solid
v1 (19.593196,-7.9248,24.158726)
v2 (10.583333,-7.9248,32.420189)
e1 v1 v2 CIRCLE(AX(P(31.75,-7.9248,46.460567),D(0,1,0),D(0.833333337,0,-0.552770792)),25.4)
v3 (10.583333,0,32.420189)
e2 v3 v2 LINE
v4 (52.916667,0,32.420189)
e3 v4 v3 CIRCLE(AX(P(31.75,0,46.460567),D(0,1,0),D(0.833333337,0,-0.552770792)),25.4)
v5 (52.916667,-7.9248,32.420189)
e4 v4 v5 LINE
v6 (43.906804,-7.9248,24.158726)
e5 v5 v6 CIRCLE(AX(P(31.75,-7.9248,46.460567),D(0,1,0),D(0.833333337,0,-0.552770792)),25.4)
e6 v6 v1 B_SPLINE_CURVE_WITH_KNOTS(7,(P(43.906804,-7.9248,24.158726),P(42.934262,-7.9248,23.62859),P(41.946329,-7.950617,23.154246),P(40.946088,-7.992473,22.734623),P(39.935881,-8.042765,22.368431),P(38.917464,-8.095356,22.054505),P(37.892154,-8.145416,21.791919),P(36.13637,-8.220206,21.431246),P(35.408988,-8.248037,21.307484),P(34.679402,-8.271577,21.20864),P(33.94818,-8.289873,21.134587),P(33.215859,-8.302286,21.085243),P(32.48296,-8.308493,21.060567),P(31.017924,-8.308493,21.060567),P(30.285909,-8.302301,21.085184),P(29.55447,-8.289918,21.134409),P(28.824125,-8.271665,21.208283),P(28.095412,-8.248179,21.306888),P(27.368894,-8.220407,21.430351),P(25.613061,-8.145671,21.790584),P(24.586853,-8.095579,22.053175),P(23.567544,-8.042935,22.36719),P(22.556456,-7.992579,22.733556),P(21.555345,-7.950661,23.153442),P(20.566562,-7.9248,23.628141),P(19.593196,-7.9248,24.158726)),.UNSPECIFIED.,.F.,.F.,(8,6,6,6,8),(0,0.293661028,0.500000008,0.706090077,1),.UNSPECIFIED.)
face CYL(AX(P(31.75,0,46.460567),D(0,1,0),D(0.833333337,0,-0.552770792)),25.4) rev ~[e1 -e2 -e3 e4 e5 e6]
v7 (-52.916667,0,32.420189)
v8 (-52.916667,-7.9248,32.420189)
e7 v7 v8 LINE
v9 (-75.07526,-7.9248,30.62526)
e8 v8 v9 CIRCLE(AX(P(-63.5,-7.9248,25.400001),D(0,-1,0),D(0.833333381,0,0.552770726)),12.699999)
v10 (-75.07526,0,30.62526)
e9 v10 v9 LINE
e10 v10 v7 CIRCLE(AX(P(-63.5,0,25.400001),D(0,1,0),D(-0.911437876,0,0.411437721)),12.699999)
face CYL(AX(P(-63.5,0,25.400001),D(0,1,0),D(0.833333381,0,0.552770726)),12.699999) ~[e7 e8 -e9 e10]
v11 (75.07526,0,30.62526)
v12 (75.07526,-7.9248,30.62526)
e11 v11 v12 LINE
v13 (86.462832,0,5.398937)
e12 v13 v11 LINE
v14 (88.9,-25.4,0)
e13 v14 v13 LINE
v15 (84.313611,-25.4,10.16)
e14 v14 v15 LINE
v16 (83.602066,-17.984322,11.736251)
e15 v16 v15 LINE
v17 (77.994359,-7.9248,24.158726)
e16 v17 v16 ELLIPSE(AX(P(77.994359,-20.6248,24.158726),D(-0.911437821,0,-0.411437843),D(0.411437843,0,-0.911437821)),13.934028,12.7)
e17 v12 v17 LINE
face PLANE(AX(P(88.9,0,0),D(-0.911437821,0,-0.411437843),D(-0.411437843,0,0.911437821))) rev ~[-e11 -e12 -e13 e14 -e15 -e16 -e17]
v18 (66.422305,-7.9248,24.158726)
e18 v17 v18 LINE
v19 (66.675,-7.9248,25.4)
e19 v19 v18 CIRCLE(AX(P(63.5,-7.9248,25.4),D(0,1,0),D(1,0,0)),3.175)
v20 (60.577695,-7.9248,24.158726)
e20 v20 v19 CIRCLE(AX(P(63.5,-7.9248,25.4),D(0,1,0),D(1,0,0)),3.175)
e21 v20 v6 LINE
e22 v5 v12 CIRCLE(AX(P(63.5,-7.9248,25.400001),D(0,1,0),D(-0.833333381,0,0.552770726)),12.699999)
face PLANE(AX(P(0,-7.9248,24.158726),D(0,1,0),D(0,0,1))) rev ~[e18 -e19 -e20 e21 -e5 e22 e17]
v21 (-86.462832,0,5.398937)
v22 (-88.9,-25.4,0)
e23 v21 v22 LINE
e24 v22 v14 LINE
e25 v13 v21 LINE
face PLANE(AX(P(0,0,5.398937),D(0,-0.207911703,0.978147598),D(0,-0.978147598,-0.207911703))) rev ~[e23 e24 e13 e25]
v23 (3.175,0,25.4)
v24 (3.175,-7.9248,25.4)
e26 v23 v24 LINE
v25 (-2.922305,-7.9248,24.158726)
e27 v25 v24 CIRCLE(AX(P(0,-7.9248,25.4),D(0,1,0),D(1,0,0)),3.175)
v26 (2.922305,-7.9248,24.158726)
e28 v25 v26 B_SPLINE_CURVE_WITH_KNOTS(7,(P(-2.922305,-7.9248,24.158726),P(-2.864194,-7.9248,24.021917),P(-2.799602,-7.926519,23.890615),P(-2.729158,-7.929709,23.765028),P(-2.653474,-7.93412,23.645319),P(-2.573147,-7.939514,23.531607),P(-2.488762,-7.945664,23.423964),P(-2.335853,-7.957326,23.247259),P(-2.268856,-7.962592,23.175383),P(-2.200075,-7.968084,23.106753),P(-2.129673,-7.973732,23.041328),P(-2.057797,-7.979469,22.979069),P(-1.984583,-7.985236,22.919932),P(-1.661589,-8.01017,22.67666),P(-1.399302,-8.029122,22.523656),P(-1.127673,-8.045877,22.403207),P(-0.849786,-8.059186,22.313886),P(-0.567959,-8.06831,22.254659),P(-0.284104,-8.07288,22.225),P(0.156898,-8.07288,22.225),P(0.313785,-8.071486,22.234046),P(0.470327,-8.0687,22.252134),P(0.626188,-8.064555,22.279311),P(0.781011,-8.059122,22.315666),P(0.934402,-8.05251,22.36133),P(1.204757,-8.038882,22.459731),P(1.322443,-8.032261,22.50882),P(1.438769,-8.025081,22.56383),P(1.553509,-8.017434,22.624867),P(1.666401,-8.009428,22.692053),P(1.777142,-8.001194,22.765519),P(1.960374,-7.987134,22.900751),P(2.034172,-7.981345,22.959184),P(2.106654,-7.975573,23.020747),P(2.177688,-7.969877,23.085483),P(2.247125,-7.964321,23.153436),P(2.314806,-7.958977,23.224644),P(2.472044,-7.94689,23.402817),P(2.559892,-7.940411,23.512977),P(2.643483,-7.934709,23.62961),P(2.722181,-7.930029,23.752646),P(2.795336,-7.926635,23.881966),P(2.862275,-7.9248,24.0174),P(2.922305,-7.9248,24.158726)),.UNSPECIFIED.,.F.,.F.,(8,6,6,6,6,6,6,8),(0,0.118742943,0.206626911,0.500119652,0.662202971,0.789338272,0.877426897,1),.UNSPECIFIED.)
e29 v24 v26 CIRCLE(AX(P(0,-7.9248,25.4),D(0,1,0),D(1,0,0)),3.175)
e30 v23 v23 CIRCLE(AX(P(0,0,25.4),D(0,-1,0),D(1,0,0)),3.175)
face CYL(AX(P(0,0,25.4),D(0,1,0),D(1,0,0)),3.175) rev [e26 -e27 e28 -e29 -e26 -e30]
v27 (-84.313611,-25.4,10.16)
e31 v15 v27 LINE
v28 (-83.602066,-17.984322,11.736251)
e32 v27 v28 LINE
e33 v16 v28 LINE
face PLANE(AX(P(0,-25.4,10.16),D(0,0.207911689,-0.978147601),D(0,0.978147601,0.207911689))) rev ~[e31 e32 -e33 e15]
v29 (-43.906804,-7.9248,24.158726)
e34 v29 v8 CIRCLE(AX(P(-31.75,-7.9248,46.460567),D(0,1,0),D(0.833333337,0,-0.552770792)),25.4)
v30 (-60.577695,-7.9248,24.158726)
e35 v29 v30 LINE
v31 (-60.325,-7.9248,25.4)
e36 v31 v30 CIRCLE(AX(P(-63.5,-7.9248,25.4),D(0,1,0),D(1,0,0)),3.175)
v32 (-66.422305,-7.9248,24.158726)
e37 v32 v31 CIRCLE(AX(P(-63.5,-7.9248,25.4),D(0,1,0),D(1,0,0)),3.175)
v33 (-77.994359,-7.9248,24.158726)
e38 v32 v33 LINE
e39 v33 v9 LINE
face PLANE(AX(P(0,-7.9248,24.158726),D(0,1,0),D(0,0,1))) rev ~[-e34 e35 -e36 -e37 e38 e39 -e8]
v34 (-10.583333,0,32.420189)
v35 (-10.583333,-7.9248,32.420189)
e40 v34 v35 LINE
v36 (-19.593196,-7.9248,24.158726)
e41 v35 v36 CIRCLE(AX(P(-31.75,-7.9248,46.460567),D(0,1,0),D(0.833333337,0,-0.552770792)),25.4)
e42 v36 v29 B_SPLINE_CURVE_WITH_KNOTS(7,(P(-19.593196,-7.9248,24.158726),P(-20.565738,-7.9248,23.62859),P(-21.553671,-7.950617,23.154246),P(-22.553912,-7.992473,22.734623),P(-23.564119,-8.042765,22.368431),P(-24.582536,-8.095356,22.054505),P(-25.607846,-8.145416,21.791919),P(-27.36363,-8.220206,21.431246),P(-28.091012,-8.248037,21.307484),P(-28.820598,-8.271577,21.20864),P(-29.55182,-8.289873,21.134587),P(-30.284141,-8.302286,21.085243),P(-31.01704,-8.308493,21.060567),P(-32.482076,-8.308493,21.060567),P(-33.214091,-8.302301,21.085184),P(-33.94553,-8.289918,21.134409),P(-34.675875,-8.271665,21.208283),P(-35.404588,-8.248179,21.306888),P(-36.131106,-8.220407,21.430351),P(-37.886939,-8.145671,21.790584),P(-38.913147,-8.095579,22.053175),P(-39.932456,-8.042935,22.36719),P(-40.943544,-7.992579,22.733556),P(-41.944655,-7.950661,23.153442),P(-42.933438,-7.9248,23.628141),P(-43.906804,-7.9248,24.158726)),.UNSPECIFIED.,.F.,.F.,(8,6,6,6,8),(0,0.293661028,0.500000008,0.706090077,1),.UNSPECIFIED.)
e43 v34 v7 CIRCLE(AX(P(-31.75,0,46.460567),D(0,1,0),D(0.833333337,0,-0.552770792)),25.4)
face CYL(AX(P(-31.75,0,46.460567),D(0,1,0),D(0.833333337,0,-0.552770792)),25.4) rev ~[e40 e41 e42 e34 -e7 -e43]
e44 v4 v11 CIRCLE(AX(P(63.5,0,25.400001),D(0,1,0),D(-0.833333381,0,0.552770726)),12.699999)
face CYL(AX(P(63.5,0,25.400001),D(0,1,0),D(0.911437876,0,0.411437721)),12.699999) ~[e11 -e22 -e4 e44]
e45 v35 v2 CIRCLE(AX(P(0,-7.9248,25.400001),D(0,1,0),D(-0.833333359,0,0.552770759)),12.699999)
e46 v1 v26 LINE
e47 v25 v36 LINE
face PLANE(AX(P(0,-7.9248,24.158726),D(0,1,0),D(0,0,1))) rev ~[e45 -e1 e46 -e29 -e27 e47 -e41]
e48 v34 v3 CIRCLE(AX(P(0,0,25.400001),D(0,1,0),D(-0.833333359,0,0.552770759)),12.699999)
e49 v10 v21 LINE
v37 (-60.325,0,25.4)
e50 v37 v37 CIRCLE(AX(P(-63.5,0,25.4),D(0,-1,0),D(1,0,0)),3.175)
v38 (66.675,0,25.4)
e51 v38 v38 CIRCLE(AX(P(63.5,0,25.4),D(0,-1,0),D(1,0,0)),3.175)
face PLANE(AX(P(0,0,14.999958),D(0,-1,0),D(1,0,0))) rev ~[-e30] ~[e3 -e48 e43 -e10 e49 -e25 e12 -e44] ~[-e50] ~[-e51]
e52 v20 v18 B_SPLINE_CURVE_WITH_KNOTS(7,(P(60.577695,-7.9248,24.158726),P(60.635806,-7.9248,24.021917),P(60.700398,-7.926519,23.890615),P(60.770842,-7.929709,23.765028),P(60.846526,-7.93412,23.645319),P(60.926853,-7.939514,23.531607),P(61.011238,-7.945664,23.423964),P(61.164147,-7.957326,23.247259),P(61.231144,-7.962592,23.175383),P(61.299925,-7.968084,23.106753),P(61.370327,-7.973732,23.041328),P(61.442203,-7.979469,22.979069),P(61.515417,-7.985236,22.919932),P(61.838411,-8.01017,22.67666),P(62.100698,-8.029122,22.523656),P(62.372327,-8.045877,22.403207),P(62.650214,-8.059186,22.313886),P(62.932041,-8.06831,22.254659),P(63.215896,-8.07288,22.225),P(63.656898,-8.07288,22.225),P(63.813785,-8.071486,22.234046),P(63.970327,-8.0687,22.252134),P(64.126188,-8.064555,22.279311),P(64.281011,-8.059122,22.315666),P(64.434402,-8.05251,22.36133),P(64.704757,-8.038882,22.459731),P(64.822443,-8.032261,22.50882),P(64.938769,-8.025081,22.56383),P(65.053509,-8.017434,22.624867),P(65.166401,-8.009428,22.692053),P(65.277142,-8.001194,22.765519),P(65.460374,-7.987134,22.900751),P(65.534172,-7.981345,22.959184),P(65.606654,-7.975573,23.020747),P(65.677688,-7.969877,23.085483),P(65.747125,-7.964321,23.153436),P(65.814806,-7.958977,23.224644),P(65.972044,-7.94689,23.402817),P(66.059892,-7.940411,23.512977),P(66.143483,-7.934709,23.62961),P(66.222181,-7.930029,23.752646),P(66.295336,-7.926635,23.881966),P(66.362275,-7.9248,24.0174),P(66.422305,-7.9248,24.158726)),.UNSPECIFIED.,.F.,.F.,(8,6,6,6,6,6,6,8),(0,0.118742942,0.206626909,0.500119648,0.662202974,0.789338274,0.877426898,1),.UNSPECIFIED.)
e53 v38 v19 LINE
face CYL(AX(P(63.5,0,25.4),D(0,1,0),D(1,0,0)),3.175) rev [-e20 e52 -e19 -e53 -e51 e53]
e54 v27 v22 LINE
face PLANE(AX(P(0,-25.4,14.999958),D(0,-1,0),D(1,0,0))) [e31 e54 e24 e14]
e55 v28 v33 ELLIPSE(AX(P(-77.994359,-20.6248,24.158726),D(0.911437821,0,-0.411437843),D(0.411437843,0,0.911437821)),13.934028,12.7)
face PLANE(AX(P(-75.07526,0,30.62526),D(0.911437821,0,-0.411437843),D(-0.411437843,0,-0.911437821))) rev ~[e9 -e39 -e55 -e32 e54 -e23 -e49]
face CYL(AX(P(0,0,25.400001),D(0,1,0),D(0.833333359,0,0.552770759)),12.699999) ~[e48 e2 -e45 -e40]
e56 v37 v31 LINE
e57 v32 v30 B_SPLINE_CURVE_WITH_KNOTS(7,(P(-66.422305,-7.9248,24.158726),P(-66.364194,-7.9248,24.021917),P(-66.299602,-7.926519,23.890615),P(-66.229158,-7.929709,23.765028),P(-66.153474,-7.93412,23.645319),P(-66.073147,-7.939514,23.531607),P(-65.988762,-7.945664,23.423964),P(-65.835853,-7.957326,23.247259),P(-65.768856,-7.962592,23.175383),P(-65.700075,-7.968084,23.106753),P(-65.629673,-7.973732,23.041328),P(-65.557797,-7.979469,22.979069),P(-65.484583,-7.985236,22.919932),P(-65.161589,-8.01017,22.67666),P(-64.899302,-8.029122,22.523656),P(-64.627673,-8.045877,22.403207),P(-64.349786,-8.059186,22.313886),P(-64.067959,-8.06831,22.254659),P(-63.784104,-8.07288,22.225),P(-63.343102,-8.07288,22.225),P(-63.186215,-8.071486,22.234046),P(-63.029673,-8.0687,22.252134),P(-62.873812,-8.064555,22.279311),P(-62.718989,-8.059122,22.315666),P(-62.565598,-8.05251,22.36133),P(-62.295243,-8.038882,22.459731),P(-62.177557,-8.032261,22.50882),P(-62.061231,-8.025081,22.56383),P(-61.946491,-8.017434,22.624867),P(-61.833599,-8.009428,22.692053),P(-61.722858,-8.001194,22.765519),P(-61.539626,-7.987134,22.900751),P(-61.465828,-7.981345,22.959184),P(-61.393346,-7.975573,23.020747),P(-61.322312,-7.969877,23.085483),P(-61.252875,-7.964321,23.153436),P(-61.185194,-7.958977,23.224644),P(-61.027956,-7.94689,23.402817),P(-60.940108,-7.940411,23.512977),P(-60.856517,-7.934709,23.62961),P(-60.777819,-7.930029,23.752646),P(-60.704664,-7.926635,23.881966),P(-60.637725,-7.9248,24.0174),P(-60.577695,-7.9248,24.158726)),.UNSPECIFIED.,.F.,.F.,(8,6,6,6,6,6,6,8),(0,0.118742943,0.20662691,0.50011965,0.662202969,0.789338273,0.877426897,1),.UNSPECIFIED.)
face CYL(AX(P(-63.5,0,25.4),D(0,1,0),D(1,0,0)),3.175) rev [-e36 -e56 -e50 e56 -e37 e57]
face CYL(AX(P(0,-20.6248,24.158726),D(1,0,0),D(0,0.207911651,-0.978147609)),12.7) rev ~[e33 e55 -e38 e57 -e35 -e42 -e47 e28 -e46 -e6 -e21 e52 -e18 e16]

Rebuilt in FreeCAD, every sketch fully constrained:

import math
import FreeCAD as App
import Part
import Sketcher

V = App.Vector
Q = App.Units.Quantity

doc = App.newDocument("Part")
body = doc.addObject("PartDesign::Body", "Body")

# Sketch on XZ plane
sketch1 = body.newObject("Sketcher::SketchObject", "Sketch")
sketch1.AttachmentSupport = (doc.getObject("XZ_Plane"), [""])
sketch1.MapMode = "FlatFace"
sketch1.addGeometry(Part.LineSegment(V(-75.1, 30.6, 0), V(-88.9, 0, 0)), False)
sketch1.addGeometry(Part.LineSegment(V(-88.9, 0, 0), V(88.9, 0, 0)), False)
sketch1.addGeometry(Part.LineSegment(V(88.9, 0, 0), V(75.1, 30.6, 0)), False)
sketch1.addGeometry(Part.ArcOfCircle(Part.Circle(V(63.5, 25.4, 0), V(0, 0, 1), 12.7), math.radians(24), math.radians(146)), False)
sketch1.addGeometry(Part.ArcOfCircle(Part.Circle(V(31.8, 46.5, 0), V(0, 0, 1), 25.4), math.radians(-146), math.radians(-34)), False)
sketch1.addGeometry(Part.ArcOfCircle(Part.Circle(V(0, 25.4, 0), V(0, 0, 1), 12.7), math.radians(34), math.radians(146)), False)
sketch1.addGeometry(Part.ArcOfCircle(Part.Circle(V(-31.8, 46.5, 0), V(0, 0, 1), 25.4), math.radians(-146), math.radians(-34)), False)
sketch1.addGeometry(Part.ArcOfCircle(Part.Circle(V(-63.5, 25.4, 0), V(0, 0, 1), 12.7), math.radians(34), math.radians(156)), False)
sketch1.addGeometry(Part.Circle(V(-63.5, 25.4, 0), V(0, 0, 1), 3.2), False)
sketch1.addGeometry(Part.Circle(V(0, 25.4, 0), V(0, 0, 1), 3.2), False)
sketch1.addGeometry(Part.Circle(V(63.5, 25.4, 0), V(0, 0, 1), 3.2), False)
sketch1.addConstraint(Sketcher.Constraint("Coincident", 0, 2, 1, 1))
sketch1.addConstraint(Sketcher.Constraint("Coincident", 1, 2, 2, 1))
sketch1.addConstraint(Sketcher.Constraint("Tangent", 2, 2, 3, 1))
sketch1.addConstraint(Sketcher.Constraint("Tangent", 3, 2, 4, 2))
sketch1.addConstraint(Sketcher.Constraint("Tangent", 4, 1, 5, 1))
sketch1.addConstraint(Sketcher.Constraint("Tangent", 5, 2, 6, 2))
sketch1.addConstraint(Sketcher.Constraint("Tangent", 6, 1, 7, 1))
sketch1.addConstraint(Sketcher.Constraint("Tangent", 7, 2, 0, 1))
sketch1.addConstraint(Sketcher.Constraint("Horizontal", 1))
sketch1.addConstraint(Sketcher.Constraint("Coincident", 8, 3, 7, 3))
sketch1.addConstraint(Sketcher.Constraint("Coincident", 9, 3, 5, 3))
sketch1.addConstraint(Sketcher.Constraint("Coincident", 10, 3, 3, 3))
sketch1.addConstraint(Sketcher.Constraint("Equal", 3, 5))
sketch1.addConstraint(Sketcher.Constraint("Equal", 4, 6))
sketch1.addConstraint(Sketcher.Constraint("Equal", 5, 7))
sketch1.addConstraint(Sketcher.Constraint("Equal", 8, 9))
sketch1.addConstraint(Sketcher.Constraint("Equal", 9, 10))
sketch1.addConstraint(Sketcher.Constraint("Symmetric", 0, 2, 1, 2, -1, 1))
sketch1.addConstraint(Sketcher.Constraint("Symmetric", 4, 3, 6, 3, -2))
sketch1.addConstraint(Sketcher.Constraint("Horizontal", 3, 3, 5, 3))
sketch1.addConstraint(Sketcher.Constraint("Horizontal", 5, 3, 7, 3))
sketch1.addConstraint(Sketcher.Constraint("Radius", 4, Q("1 in")))
sketch1.addConstraint(Sketcher.Constraint("Radius", 3, Q("0.5 in")))
sketch1.addConstraint(Sketcher.Constraint("Diameter", 8, Q("0.25 in")))
sketch1.addConstraint(Sketcher.Constraint("DistanceX", 1, 1, 1, 2, Q("7 in")))
sketch1.addConstraint(Sketcher.Constraint("DistanceY", -1, 1, 3, 3, Q("1.0000001 in")))
sketch1.addConstraint(Sketcher.Constraint("DistanceX", 7, 3, 3, 3, Q("5 in")))
pad1 = body.newObject("PartDesign::Pad", "Pad")
pad1.Profile = sketch1
pad1.Length = Q("1 in")

# Sketch on YZ plane
sketch2 = body.newObject("Sketcher::SketchObject", "Sketch001")
sketch2.AttachmentSupport = (doc.getObject("YZ_Plane"), [""])
sketch2.MapMode = "FlatFace"
sketch2.addGeometry(Part.LineSegment(V(-32, 43, 0), V(-32, -3, 0)), False)
sketch2.addGeometry(Part.LineSegment(V(-32, -3, 0), V(7, -3, 0)), False)
sketch2.addGeometry(Part.LineSegment(V(7, -3, 0), V(7, 43, 0)), False)
sketch2.addGeometry(Part.LineSegment(V(7, 43, 0), V(-32, 43, 0)), False)
sketch2.addGeometry(Part.LineSegment(V(-8, 24, 0), V(-8, 38, 0)), False)
sketch2.addGeometry(Part.LineSegment(V(-8, 38, 0), V(0, 38, 0)), False)
sketch2.addGeometry(Part.LineSegment(V(0, 38, 0), V(0, 5, 0)), False)
sketch2.addGeometry(Part.LineSegment(V(0, 5, 0), V(-25, 0, 0)), False)
sketch2.addGeometry(Part.LineSegment(V(-25, 0, 0), V(-25, 10, 0)), False)
sketch2.addGeometry(Part.LineSegment(V(-25, 10, 0), V(-18, 12, 0)), False)
sketch2.addGeometry(Part.ArcOfCircle(Part.Circle(V(-21, 24, 0), V(0, 0, 1), 13), math.radians(-78), math.radians(0)), False)
sketch2.addConstraint(Sketcher.Constraint("Coincident", 0, 2, 1, 1))
sketch2.addConstraint(Sketcher.Constraint("Coincident", 1, 2, 2, 1))
sketch2.addConstraint(Sketcher.Constraint("Coincident", 2, 2, 3, 1))
sketch2.addConstraint(Sketcher.Constraint("Coincident", 3, 2, 0, 1))
sketch2.addConstraint(Sketcher.Constraint("Coincident", 4, 2, 5, 1))
sketch2.addConstraint(Sketcher.Constraint("Coincident", 5, 2, 6, 1))
sketch2.addConstraint(Sketcher.Constraint("Coincident", 6, 2, 7, 1))
sketch2.addConstraint(Sketcher.Constraint("Coincident", 7, 2, 8, 1))
sketch2.addConstraint(Sketcher.Constraint("Coincident", 8, 2, 9, 1))
sketch2.addConstraint(Sketcher.Constraint("Tangent", 9, 2, 10, 1))
sketch2.addConstraint(Sketcher.Constraint("Tangent", 10, 2, 4, 1))
sketch2.addConstraint(Sketcher.Constraint("Vertical", 0))
sketch2.addConstraint(Sketcher.Constraint("Horizontal", 1))
sketch2.addConstraint(Sketcher.Constraint("Vertical", 2))
sketch2.addConstraint(Sketcher.Constraint("Horizontal", 3))
sketch2.addConstraint(Sketcher.Constraint("Vertical", 4))
sketch2.addConstraint(Sketcher.Constraint("Horizontal", 5))
sketch2.addConstraint(Sketcher.Constraint("Vertical", 6))
sketch2.addConstraint(Sketcher.Constraint("Vertical", 8))
sketch2.addConstraint(Sketcher.Constraint("PointOnObject", 5, 2, -2))
sketch2.addConstraint(Sketcher.Constraint("PointOnObject", 7, 2, -1))
sketch2.addConstraint(Sketcher.Constraint("Parallel", 7, 9))
sketch2.addConstraint(Sketcher.Constraint("Radius", 10, Q("0.5 in")))
sketch2.addConstraint(Sketcher.Constraint("DistanceY", 8, 1, 8, 2, Q("0.4 in")))
sketch2.addConstraint(Sketcher.Constraint("DistanceX", 7, 2, -1, 1, Q("1 in")))
sketch2.addConstraint(Sketcher.Constraint("Angle", 7, Q("-167.999999 deg")))
sketch2.addConstraint(Sketcher.Constraint("DistanceY", -1, 1, 4, 2, Q("1.5 in")))
sketch2.addConstraint(Sketcher.Constraint("DistanceX", 5, 1, 5, 2, Q("0.312 in")))
sketch2.addConstraint(Sketcher.Constraint("DistanceY", 0, 2, 0, 1, 45.7977))
sketch2.addConstraint(Sketcher.Constraint("DistanceX", 1, 1, 1, 2, 38.951648))
sketch2.addConstraint(Sketcher.Constraint("DistanceY", 0, 2, 10, 3, 27.220961))
sketch2.addConstraint(Sketcher.Constraint("DistanceX", 0, 2, -1, 1, 32.227095))
pocket1 = body.newObject("PartDesign::Pocket", "Pocket")
pocket1.Profile = sketch2
pocket1.Length = Q("15 in")
pocket1.Midplane = True

doc.recompute()
